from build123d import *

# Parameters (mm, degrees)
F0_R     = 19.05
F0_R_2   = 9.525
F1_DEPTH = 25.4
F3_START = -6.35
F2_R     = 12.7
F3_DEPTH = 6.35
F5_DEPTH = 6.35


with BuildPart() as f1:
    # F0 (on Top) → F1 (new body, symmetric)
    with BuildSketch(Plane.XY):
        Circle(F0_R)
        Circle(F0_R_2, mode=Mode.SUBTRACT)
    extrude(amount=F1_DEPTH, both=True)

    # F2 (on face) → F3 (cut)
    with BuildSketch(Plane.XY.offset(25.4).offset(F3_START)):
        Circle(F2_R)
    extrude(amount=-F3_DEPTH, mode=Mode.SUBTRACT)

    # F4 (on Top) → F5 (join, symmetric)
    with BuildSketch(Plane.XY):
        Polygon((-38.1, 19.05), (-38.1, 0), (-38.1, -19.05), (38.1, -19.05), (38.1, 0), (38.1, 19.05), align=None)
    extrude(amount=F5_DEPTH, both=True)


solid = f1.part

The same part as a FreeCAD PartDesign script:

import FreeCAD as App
import Part
import Sketcher

V = App.Vector
Q = App.Units.Quantity


def add_polygon(sketch, points):
    """Adds a closed chain of lines whose ends are joined by coincident constraints."""
    first, n = sketch.GeometryCount, len(points)
    for a, b in zip(points, points[1:] + points[:1]):
        sketch.addGeometry(Part.LineSegment(App.Vector(*a, 0), App.Vector(*b, 0)), False)
    for i in range(n):
        sketch.addConstraint(Sketcher.Constraint("Coincident", first + i, 2, first + (i + 1) % n, 1))

doc = App.newDocument("Part")
body = doc.addObject("PartDesign::Body", "Body")

sketch1 = body.newObject("Sketcher::SketchObject", "Sketch")
sketch1.AttachmentSupport = (doc.getObject("XY_Plane"), [""])
sketch1.MapMode = "FlatFace"
sketch1.addGeometry(Part.Circle(V(0, 0, 0), V(0, 0, 1), 19), False)
sketch1.addGeometry(Part.Circle(V(0, 0, 0), V(0, 0, 1), 10), False)
sketch1.addConstraint(Sketcher.Constraint("Coincident", 0, 3, -1, 1))
sketch1.addConstraint(Sketcher.Constraint("Coincident", 1, 3, -1, 1))
sketch1.addConstraint(Sketcher.Constraint("Diameter", 0, Q("1.5 in")))
sketch1.addConstraint(Sketcher.Constraint("Diameter", 1, Q("0.75 in")))
pad1 = body.newObject("PartDesign::Pad", "Pad")
pad1.Profile = sketch1
pad1.Length = Q("2 in")
pad1.Midplane = True

sketch2 = body.newObject("Sketcher::SketchObject", "Sketch001")
sketch2.AttachmentSupport = (doc.getObject("XY_Plane"), [""])
sketch2.MapMode = "FlatFace"
sketch2.AttachmentOffset = App.Placement(V(0, 0, 0.75 * 25.4), App.Rotation())
sketch2.addGeometry(Part.Circle(V(0, 0, 0), V(0, 0, 1), 13), False)
sketch2.addConstraint(Sketcher.Constraint("Coincident", 0, 3, -1, 1))
sketch2.addConstraint(Sketcher.Constraint("Diameter", 0, Q("1 in")))
pocket1 = body.newObject("PartDesign::Pocket", "Pocket")
pocket1.Profile = sketch2
pocket1.Length = Q("0.25 in")

sketch3 = body.newObject("Sketcher::SketchObject", "Sketch002")
sketch3.AttachmentSupport = (doc.getObject("XY_Plane"), [""])
sketch3.MapMode = "FlatFace"
add_polygon(sketch3, [(-38, 19), (-38, -19), (38, -19), (38, 19)])
sketch3.addConstraint(Sketcher.Constraint("Vertical", 0))
sketch3.addConstraint(Sketcher.Constraint("Horizontal", 1))
sketch3.addConstraint(Sketcher.Constraint("Vertical", 2))
sketch3.addConstraint(Sketcher.Constraint("Horizontal", 3))
sketch3.addConstraint(Sketcher.Constraint("Symmetric", 0, 2, 2, 2, -1, 1))
sketch3.addConstraint(Sketcher.Constraint("DistanceX", 1, 1, 1, 2, Q("3 in")))
sketch3.addConstraint(Sketcher.Constraint("DistanceY", 0, 2, 0, 1, Q("1.5 in")))
pad2 = body.newObject("PartDesign::Pad", "Pad001")
pad2.Profile = sketch3
pad2.Length = Q("0.5 in")
pad2.Midplane = True

doc.recompute()
